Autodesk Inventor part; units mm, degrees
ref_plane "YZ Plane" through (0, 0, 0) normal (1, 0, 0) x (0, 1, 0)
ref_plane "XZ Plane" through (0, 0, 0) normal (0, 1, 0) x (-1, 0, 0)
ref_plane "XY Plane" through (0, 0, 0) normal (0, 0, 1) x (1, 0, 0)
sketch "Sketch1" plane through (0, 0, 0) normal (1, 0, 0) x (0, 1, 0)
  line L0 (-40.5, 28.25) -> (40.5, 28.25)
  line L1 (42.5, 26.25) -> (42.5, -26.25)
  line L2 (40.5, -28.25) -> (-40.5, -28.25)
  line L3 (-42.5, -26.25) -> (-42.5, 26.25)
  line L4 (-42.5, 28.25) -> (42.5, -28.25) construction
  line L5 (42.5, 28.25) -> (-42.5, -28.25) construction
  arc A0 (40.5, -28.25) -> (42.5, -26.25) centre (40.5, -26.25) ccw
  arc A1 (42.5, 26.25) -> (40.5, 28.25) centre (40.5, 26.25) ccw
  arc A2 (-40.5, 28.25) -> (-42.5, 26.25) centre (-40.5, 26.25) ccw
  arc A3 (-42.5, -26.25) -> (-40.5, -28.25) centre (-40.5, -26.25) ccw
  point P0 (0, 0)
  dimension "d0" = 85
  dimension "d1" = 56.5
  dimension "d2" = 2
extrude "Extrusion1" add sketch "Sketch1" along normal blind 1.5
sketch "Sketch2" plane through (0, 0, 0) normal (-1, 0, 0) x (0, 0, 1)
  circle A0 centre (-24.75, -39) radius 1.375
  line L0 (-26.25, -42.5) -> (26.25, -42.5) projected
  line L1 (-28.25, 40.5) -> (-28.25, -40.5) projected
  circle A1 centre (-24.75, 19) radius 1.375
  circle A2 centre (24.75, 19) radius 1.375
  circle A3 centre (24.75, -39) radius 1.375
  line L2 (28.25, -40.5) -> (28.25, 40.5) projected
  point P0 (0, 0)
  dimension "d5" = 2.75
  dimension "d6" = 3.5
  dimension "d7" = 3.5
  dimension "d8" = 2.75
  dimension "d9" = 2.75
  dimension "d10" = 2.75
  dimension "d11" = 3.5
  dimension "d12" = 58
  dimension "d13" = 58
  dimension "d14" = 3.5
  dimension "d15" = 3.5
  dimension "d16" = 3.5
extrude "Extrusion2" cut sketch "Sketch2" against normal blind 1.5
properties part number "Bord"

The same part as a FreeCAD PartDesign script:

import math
import FreeCAD as App
import Part
import Sketcher

V = App.Vector
Q = App.Units.Quantity

doc = App.newDocument("Part")
body = doc.addObject("PartDesign::Body", "Body")

sketch1 = body.newObject("Sketcher::SketchObject", "Sketch")
sketch1.AttachmentSupport = (doc.getObject("YZ_Plane"), [""])
sketch1.MapMode = "FlatFace"
sketch1.addGeometry(Part.LineSegment(V(40.5, 28.2, 0), V(-40.5, 28.2, 0)), False)
sketch1.addGeometry(Part.ArcOfCircle(Part.Circle(V(-40.5, 26.2, 0), V(0, 0, 1), 2), math.radians(90), math.radians(180)), False)
sketch1.addGeometry(Part.LineSegment(V(-42.5, 26.2, 0), V(-42.5, -26.2, 0)), False)
sketch1.addGeometry(Part.ArcOfCircle(Part.Circle(V(-40.5, -26.2, 0), V(0, 0, 1), 2), math.radians(180), math.radians(270)), False)
sketch1.addGeometry(Part.LineSegment(V(-40.5, -28.2, 0), V(40.5, -28.2, 0)), False)
sketch1.addGeometry(Part.ArcOfCircle(Part.Circle(V(40.5, -26.2, 0), V(0, 0, 1), 2), math.radians(-90), math.radians(0)), False)
sketch1.addGeometry(Part.LineSegment(V(42.5, -26.2, 0), V(42.5, 26.2, 0)), False)
sketch1.addGeometry(Part.ArcOfCircle(Part.Circle(V(40.5, 26.2, 0), V(0, 0, 1), 2), math.radians(0), math.radians(90)), False)
sketch1.addConstraint(Sketcher.Constraint("Tangent", 0, 2, 1, 1))
sketch1.addConstraint(Sketcher.Constraint("Tangent", 1, 2, 2, 1))
sketch1.addConstraint(Sketcher.Constraint("Tangent", 2, 2, 3, 1))
sketch1.addConstraint(Sketcher.Constraint("Tangent", 3, 2, 4, 1))
sketch1.addConstraint(Sketcher.Constraint("Tangent", 4, 2, 5, 1))
sketch1.addConstraint(Sketcher.Constraint("Tangent", 5, 2, 6, 1))
sketch1.addConstraint(Sketcher.Constraint("Tangent", 6, 2, 7, 1))
sketch1.addConstraint(Sketcher.Constraint("Tangent", 7, 2, 0, 1))
sketch1.addConstraint(Sketcher.Constraint("Horizontal", 0))
sketch1.addConstraint(Sketcher.Constraint("Vertical", 2))
sketch1.addConstraint(Sketcher.Constraint("Horizontal", 4))
sketch1.addConstraint(Sketcher.Constraint("Vertical", 6))
sketch1.addConstraint(Sketcher.Constraint("Equal", 1, 3))
sketch1.addConstraint(Sketcher.Constraint("Equal", 3, 5))
sketch1.addConstraint(Sketcher.Constraint("Equal", 5, 7))
sketch1.addConstraint(Sketcher.Constraint("Symmetric", 1, 3, 5, 3, -1, 1))
sketch1.addConstraint(Sketcher.Constraint("Radius", 1, Q("2 mm")))
sketch1.addConstraint(Sketcher.Constraint("DistanceY", 3, 2, 0, 2, Q("56.5 mm")))
sketch1.addConstraint(Sketcher.Constraint("DistanceX", 0, 2, 0, 1, Q("81 mm")))
pad1 = body.newObject("PartDesign::Pad", "Pad")
pad1.Profile = sketch1
pad1.Length = 1.5

sketch2 = body.newObject("Sketcher::SketchObject", "Sketch001")
sketch2.AttachmentSupport = (doc.getObject("YZ_Plane"), [""])
sketch2.MapMode = "FlatFace"
sketch2.addGeometry(Part.Circle(V(-39, -24.8, 0), V(0, 0, 1), 1.4), False)
sketch2.addGeometry(Part.Circle(V(19, -24.8, 0), V(0, 0, 1), 1.4), False)
sketch2.addGeometry(Part.Circle(V(19, 24.8, 0), V(0, 0, 1), 1.4), False)
sketch2.addGeometry(Part.Circle(V(-39, 24.8, 0), V(0, 0, 1), 1.4), False)
sketch2.addConstraint(Sketcher.Constraint("Equal", 0, 1))
sketch2.addConstraint(Sketcher.Constraint("Equal", 1, 2))
sketch2.addConstraint(Sketcher.Constraint("Equal", 2, 3))
sketch2.addConstraint(Sketcher.Constraint("Symmetric", 1, 3, 2, 3, -1))
sketch2.addConstraint(Sketcher.Constraint("Symmetric", 0, 3, 3, 3, -1))
sketch2.addConstraint(Sketcher.Constraint("Horizontal", 0, 3, 1, 3))
sketch2.addConstraint(Sketcher.Constraint("Diameter", 0, Q("2.75 mm")))
sketch2.addConstraint(Sketcher.Constraint("DistanceX", 0, 3, 1, 3, Q("58 mm")))
sketch2.addConstraint(Sketcher.Constraint("DistanceX", 0, 3, -1, 1, Q("39 mm")))
sketch2.addConstraint(Sketcher.Constraint("DistanceY", 1, 3, 2, 3, Q("49.5 mm")))
pocket1 = body.newObject("PartDesign::Pocket", "Pocket")
pocket1.Profile = sketch2
pocket1.Length = 1.5
pocket1.Reversed = True

doc.recompute()
